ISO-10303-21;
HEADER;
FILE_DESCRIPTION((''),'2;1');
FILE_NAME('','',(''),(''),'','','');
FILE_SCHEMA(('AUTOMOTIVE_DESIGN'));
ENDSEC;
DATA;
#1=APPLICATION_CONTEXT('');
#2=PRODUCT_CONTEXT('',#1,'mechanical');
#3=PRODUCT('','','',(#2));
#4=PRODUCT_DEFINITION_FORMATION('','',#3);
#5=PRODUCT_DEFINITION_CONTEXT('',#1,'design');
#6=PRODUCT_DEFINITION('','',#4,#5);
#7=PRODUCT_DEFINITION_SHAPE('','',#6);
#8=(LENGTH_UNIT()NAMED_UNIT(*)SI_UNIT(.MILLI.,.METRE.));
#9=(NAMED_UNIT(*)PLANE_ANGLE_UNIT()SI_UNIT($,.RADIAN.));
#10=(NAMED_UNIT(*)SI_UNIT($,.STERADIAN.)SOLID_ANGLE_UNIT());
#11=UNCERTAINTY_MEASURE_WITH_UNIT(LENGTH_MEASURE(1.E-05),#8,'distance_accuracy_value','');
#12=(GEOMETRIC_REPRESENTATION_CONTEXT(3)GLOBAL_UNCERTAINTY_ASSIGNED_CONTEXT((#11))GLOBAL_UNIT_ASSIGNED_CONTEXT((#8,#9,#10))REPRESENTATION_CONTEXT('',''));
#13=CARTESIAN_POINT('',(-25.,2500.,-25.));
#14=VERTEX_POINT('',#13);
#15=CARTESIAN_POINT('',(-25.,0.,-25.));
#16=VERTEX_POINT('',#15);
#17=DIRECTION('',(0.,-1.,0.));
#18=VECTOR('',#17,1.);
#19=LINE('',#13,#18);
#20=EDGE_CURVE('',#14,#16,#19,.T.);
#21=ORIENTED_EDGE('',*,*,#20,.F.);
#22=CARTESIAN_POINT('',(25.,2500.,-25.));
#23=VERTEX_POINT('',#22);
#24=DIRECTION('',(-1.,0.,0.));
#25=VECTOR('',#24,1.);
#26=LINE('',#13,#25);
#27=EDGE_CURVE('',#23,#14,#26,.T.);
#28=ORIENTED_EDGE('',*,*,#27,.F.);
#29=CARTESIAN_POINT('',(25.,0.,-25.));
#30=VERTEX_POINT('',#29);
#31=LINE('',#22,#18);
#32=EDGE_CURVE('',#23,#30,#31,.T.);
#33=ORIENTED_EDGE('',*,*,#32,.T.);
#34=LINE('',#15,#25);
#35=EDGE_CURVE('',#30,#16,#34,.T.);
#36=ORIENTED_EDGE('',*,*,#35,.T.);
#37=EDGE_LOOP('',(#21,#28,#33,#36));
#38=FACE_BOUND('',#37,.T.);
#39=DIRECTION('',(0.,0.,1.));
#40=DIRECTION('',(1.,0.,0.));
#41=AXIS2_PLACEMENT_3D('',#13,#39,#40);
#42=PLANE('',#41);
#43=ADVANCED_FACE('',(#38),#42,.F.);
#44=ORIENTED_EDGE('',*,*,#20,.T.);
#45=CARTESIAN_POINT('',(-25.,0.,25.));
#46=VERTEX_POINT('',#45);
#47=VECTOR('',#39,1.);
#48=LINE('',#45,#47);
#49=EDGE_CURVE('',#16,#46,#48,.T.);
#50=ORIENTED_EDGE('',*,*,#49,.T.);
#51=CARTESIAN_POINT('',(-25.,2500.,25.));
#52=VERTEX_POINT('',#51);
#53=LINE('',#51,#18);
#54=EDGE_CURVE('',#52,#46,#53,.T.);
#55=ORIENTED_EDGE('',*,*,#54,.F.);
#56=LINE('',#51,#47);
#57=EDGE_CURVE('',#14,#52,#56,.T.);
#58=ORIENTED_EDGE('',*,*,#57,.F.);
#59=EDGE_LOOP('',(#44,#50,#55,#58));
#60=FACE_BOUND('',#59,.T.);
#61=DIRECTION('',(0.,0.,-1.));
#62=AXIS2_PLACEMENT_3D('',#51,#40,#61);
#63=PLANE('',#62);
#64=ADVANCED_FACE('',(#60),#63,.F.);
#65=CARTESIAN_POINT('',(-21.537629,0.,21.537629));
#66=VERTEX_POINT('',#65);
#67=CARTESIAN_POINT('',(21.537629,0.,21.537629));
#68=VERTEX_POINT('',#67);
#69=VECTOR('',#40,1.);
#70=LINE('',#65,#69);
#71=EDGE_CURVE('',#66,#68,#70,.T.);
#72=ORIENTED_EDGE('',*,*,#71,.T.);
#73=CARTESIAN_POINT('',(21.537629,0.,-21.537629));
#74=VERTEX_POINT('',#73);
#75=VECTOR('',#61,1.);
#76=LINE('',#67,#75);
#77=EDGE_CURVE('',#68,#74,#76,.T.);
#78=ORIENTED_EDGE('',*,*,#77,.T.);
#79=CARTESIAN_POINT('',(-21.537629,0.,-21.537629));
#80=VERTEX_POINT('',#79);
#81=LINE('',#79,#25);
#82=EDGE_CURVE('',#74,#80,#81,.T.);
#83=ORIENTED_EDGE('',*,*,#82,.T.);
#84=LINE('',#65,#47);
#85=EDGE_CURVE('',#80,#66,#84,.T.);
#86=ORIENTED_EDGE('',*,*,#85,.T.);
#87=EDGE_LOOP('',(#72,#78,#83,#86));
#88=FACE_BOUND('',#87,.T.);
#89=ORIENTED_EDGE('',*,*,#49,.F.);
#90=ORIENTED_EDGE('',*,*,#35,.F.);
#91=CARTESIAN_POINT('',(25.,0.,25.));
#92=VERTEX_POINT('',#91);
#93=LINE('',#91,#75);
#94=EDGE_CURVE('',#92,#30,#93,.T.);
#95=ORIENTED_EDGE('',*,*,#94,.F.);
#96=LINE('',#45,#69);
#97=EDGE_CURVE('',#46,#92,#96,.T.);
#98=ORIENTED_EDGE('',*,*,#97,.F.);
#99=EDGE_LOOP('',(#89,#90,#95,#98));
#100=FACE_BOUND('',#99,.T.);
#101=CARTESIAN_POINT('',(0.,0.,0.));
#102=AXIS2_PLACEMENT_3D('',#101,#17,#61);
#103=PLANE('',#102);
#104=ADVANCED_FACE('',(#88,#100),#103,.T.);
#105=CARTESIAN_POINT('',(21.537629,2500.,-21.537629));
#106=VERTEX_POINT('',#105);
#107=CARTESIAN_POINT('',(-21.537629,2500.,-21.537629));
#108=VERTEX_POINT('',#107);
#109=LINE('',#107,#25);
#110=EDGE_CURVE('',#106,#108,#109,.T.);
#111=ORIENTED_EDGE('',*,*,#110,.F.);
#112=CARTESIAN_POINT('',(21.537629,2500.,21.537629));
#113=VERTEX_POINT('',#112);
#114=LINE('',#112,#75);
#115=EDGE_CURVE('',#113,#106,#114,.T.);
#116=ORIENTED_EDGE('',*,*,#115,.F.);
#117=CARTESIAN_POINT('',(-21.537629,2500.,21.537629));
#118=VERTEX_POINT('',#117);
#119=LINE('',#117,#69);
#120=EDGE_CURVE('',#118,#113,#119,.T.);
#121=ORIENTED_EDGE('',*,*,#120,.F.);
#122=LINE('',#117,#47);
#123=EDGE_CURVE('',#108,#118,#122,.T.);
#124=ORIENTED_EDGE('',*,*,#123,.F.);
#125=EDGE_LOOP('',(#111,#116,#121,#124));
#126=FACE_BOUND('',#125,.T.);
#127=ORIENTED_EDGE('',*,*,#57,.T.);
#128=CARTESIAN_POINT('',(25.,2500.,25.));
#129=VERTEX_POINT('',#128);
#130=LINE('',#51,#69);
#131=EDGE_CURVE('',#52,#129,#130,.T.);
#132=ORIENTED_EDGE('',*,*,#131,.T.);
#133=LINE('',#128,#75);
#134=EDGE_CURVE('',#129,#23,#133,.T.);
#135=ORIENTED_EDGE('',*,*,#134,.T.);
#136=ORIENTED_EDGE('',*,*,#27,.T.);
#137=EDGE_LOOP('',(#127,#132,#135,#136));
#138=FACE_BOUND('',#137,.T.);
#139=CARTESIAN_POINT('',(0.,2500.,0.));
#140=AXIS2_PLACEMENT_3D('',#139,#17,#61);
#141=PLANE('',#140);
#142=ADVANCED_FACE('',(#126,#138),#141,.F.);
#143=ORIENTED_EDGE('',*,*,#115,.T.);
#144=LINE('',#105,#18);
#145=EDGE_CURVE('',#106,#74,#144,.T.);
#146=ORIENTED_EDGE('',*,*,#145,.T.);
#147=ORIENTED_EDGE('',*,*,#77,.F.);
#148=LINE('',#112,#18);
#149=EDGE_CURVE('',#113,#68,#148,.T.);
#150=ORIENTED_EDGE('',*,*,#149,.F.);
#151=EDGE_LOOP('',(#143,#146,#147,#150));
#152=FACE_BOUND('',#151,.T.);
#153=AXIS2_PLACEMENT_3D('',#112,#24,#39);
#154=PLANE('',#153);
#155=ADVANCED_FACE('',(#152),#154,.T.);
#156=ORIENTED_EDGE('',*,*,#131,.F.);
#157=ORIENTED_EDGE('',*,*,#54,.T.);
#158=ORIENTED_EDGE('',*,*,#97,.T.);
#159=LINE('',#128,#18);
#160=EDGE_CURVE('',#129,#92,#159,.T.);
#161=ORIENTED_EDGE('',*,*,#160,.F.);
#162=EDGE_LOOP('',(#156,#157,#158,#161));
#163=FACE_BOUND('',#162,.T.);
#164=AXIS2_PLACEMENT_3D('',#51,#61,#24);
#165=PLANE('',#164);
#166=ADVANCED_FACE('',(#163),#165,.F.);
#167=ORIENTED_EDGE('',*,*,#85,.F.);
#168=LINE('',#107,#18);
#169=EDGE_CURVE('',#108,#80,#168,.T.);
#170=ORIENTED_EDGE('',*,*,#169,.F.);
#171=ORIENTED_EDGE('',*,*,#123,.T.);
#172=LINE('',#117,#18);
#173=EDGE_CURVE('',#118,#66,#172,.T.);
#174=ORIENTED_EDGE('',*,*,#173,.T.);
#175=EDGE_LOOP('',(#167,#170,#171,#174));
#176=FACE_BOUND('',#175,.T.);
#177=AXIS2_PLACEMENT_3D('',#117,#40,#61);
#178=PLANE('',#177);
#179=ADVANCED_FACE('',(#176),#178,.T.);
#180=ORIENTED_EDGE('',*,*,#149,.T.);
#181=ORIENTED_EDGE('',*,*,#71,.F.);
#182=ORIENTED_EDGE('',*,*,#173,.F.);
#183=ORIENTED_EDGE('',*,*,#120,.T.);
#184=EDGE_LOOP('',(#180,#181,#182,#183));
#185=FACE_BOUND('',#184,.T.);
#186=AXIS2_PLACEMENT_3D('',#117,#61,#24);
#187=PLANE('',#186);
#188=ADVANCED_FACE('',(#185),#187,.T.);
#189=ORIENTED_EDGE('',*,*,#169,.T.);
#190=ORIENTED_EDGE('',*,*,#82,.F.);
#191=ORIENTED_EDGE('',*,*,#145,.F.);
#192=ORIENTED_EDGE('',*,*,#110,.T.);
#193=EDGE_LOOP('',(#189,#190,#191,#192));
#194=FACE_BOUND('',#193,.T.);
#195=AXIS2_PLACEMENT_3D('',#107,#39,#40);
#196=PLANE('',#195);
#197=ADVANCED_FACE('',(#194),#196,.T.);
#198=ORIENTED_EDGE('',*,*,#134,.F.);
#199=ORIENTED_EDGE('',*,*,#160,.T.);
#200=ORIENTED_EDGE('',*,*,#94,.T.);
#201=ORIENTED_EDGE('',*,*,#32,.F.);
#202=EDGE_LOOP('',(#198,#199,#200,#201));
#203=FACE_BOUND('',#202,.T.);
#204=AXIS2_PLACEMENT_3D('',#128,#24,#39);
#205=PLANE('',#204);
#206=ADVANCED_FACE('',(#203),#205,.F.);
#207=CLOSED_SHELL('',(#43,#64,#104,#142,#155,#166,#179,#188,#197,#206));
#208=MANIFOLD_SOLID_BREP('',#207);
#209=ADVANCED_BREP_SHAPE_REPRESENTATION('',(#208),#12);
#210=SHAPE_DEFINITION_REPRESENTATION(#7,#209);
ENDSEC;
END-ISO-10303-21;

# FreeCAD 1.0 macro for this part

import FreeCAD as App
import Part
import Sketcher
from FreeCAD import Vector
Q = App.Units.Quantity


def add_polygon(sketch, points):
    """Adds a closed chain of lines whose ends are joined by coincident constraints."""
    first, n = sketch.GeometryCount, len(points)
    for a, b in zip(points, points[1:] + points[:1]):
        sketch.addGeometry(Part.LineSegment(App.Vector(*a, 0), App.Vector(*b, 0)), False)
    for i in range(n):
        sketch.addConstraint(Sketcher.Constraint("Coincident", first + i, 2, first + (i + 1) % n, 1))

doc = App.newDocument("Part")
body = doc.addObject("PartDesign::Body", "Body")

# Sketch on XZ plane
sketch1 = doc.addObject("Sketcher::SketchObject", "Sketch")
body.addObject(sketch1)
sketch1.AttachmentSupport = (doc.XZ_Plane, [""])
sketch1.MapMode = "FlatFace"
add_polygon(sketch1, [(-25, -25), (-25, 25), (25, 25), (25, -25)])  # lines 0-3
add_polygon(sketch1, [(22, 22), (-22, 22), (-22, -22), (22, -22)])  # lines 4-7
sketch1.addConstraint([
    Sketcher.Constraint("Vertical", 0),
    Sketcher.Constraint("Horizontal", 1),
    Sketcher.Constraint("Vertical", 2),
    Sketcher.Constraint("Horizontal", 3),
    Sketcher.Constraint("Horizontal", 4),
    Sketcher.Constraint("Vertical", 5),
    Sketcher.Constraint("Horizontal", 6),
    Sketcher.Constraint("Vertical", 7),
    Sketcher.Constraint("Symmetric", 0, 2, 2, 2, -1, 1),
    Sketcher.Constraint("Symmetric", 4, 2, 6, 2, -1, 1),
    Sketcher.Constraint("Equal", 3, 0),
    Sketcher.Constraint("Equal", 6, 5),
    Sketcher.Constraint("DistanceX", 1, 1, 1, 2, Q("50 mm")),
    Sketcher.Constraint("DistanceX", 4, 2, 4, 1, Q("43.075258 mm")),
])
pad1 = doc.addObject("PartDesign::Pad", "Pad")
body.addObject(pad1)
pad1.Profile = sketch1
pad1.Length = 2500
pad1.Reversed = True

doc.recompute()
